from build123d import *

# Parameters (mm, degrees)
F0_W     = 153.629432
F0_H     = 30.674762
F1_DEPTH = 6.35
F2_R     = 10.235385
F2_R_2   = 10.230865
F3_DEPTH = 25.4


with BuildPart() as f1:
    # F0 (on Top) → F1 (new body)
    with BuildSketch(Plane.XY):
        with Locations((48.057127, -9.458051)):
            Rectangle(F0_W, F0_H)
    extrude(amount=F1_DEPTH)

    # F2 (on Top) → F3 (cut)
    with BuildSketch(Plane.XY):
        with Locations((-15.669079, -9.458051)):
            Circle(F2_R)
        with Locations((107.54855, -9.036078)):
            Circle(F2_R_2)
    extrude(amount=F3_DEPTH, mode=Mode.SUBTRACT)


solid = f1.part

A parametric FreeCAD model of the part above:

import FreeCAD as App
import Part
import Sketcher
from FreeCAD import Vector
Q = App.Units.Quantity


def add_polygon(sketch, points):
    """Adds a closed chain of lines whose ends are joined by coincident constraints."""
    first, n = sketch.GeometryCount, len(points)
    for a, b in zip(points, points[1:] + points[:1]):
        sketch.addGeometry(Part.LineSegment(App.Vector(*a, 0), App.Vector(*b, 0)), False)
    for i in range(n):
        sketch.addConstraint(Sketcher.Constraint("Coincident", first + i, 2, first + (i + 1) % n, 1))

doc = App.newDocument("Part")
body = doc.addObject("PartDesign::Body", "Body")

sketch1 = body.newObject("Sketcher::SketchObject", "Sketch")
sketch1.AttachmentSupport = (doc.getObject("XY_Plane"), [""])
sketch1.MapMode = "FlatFace"
add_polygon(sketch1, [(-29, 6), (-29, -25), (125, -25), (125, 6)])
sketch1.addConstraint(Sketcher.Constraint("Vertical", 0))
sketch1.addConstraint(Sketcher.Constraint("Horizontal", 1))
sketch1.addConstraint(Sketcher.Constraint("Vertical", 2))
sketch1.addConstraint(Sketcher.Constraint("Horizontal", 3))
sketch1.addConstraint(Sketcher.Constraint("DistanceX", 1, 1, 1, 2, 153.629432))
sketch1.addConstraint(Sketcher.Constraint("DistanceY", 0, 2, 0, 1, 30.674762))
sketch1.addConstraint(Sketcher.Constraint("DistanceX", 0, 2, -1, 1, 28.757589))
sketch1.addConstraint(Sketcher.Constraint("DistanceY", -1, 1, 2, 2, 5.87933))
pad1 = body.newObject("PartDesign::Pad", "Pad")
pad1.Profile = sketch1
pad1.Length = Q("0.25 in")

sketch2 = body.newObject("Sketcher::SketchObject", "Sketch001")
sketch2.AttachmentSupport = (doc.getObject("XY_Plane"), [""])
sketch2.MapMode = "FlatFace"
sketch2.addGeometry(Part.Circle(Vector(-16, -9, 0), Vector(0, 0, 1), 10), False)
sketch2.addGeometry(Part.Circle(Vector(108, -9, 0), Vector(0, 0, 1), 10), False)
sketch2.addConstraint(Sketcher.Constraint("Diameter", 0, 20.47077))
sketch2.addConstraint(Sketcher.Constraint("Diameter", 1, 20.46173))
sketch2.addConstraint(Sketcher.Constraint("DistanceX", 0, 3, -1, 1, 15.669079))
sketch2.addConstraint(Sketcher.Constraint("DistanceY", 0, 3, -1, 1, 9.458051))
sketch2.addConstraint(Sketcher.Constraint("DistanceX", -1, 1, 1, 3, 107.54855))
sketch2.addConstraint(Sketcher.Constraint("DistanceY", 1, 3, -1, 1, 9.036078))
pocket1 = body.newObject("PartDesign::Pocket", "Pocket")
pocket1.Profile = sketch2
pocket1.Length = Q("1 in")
pocket1.Reversed = True

doc.recompute()
